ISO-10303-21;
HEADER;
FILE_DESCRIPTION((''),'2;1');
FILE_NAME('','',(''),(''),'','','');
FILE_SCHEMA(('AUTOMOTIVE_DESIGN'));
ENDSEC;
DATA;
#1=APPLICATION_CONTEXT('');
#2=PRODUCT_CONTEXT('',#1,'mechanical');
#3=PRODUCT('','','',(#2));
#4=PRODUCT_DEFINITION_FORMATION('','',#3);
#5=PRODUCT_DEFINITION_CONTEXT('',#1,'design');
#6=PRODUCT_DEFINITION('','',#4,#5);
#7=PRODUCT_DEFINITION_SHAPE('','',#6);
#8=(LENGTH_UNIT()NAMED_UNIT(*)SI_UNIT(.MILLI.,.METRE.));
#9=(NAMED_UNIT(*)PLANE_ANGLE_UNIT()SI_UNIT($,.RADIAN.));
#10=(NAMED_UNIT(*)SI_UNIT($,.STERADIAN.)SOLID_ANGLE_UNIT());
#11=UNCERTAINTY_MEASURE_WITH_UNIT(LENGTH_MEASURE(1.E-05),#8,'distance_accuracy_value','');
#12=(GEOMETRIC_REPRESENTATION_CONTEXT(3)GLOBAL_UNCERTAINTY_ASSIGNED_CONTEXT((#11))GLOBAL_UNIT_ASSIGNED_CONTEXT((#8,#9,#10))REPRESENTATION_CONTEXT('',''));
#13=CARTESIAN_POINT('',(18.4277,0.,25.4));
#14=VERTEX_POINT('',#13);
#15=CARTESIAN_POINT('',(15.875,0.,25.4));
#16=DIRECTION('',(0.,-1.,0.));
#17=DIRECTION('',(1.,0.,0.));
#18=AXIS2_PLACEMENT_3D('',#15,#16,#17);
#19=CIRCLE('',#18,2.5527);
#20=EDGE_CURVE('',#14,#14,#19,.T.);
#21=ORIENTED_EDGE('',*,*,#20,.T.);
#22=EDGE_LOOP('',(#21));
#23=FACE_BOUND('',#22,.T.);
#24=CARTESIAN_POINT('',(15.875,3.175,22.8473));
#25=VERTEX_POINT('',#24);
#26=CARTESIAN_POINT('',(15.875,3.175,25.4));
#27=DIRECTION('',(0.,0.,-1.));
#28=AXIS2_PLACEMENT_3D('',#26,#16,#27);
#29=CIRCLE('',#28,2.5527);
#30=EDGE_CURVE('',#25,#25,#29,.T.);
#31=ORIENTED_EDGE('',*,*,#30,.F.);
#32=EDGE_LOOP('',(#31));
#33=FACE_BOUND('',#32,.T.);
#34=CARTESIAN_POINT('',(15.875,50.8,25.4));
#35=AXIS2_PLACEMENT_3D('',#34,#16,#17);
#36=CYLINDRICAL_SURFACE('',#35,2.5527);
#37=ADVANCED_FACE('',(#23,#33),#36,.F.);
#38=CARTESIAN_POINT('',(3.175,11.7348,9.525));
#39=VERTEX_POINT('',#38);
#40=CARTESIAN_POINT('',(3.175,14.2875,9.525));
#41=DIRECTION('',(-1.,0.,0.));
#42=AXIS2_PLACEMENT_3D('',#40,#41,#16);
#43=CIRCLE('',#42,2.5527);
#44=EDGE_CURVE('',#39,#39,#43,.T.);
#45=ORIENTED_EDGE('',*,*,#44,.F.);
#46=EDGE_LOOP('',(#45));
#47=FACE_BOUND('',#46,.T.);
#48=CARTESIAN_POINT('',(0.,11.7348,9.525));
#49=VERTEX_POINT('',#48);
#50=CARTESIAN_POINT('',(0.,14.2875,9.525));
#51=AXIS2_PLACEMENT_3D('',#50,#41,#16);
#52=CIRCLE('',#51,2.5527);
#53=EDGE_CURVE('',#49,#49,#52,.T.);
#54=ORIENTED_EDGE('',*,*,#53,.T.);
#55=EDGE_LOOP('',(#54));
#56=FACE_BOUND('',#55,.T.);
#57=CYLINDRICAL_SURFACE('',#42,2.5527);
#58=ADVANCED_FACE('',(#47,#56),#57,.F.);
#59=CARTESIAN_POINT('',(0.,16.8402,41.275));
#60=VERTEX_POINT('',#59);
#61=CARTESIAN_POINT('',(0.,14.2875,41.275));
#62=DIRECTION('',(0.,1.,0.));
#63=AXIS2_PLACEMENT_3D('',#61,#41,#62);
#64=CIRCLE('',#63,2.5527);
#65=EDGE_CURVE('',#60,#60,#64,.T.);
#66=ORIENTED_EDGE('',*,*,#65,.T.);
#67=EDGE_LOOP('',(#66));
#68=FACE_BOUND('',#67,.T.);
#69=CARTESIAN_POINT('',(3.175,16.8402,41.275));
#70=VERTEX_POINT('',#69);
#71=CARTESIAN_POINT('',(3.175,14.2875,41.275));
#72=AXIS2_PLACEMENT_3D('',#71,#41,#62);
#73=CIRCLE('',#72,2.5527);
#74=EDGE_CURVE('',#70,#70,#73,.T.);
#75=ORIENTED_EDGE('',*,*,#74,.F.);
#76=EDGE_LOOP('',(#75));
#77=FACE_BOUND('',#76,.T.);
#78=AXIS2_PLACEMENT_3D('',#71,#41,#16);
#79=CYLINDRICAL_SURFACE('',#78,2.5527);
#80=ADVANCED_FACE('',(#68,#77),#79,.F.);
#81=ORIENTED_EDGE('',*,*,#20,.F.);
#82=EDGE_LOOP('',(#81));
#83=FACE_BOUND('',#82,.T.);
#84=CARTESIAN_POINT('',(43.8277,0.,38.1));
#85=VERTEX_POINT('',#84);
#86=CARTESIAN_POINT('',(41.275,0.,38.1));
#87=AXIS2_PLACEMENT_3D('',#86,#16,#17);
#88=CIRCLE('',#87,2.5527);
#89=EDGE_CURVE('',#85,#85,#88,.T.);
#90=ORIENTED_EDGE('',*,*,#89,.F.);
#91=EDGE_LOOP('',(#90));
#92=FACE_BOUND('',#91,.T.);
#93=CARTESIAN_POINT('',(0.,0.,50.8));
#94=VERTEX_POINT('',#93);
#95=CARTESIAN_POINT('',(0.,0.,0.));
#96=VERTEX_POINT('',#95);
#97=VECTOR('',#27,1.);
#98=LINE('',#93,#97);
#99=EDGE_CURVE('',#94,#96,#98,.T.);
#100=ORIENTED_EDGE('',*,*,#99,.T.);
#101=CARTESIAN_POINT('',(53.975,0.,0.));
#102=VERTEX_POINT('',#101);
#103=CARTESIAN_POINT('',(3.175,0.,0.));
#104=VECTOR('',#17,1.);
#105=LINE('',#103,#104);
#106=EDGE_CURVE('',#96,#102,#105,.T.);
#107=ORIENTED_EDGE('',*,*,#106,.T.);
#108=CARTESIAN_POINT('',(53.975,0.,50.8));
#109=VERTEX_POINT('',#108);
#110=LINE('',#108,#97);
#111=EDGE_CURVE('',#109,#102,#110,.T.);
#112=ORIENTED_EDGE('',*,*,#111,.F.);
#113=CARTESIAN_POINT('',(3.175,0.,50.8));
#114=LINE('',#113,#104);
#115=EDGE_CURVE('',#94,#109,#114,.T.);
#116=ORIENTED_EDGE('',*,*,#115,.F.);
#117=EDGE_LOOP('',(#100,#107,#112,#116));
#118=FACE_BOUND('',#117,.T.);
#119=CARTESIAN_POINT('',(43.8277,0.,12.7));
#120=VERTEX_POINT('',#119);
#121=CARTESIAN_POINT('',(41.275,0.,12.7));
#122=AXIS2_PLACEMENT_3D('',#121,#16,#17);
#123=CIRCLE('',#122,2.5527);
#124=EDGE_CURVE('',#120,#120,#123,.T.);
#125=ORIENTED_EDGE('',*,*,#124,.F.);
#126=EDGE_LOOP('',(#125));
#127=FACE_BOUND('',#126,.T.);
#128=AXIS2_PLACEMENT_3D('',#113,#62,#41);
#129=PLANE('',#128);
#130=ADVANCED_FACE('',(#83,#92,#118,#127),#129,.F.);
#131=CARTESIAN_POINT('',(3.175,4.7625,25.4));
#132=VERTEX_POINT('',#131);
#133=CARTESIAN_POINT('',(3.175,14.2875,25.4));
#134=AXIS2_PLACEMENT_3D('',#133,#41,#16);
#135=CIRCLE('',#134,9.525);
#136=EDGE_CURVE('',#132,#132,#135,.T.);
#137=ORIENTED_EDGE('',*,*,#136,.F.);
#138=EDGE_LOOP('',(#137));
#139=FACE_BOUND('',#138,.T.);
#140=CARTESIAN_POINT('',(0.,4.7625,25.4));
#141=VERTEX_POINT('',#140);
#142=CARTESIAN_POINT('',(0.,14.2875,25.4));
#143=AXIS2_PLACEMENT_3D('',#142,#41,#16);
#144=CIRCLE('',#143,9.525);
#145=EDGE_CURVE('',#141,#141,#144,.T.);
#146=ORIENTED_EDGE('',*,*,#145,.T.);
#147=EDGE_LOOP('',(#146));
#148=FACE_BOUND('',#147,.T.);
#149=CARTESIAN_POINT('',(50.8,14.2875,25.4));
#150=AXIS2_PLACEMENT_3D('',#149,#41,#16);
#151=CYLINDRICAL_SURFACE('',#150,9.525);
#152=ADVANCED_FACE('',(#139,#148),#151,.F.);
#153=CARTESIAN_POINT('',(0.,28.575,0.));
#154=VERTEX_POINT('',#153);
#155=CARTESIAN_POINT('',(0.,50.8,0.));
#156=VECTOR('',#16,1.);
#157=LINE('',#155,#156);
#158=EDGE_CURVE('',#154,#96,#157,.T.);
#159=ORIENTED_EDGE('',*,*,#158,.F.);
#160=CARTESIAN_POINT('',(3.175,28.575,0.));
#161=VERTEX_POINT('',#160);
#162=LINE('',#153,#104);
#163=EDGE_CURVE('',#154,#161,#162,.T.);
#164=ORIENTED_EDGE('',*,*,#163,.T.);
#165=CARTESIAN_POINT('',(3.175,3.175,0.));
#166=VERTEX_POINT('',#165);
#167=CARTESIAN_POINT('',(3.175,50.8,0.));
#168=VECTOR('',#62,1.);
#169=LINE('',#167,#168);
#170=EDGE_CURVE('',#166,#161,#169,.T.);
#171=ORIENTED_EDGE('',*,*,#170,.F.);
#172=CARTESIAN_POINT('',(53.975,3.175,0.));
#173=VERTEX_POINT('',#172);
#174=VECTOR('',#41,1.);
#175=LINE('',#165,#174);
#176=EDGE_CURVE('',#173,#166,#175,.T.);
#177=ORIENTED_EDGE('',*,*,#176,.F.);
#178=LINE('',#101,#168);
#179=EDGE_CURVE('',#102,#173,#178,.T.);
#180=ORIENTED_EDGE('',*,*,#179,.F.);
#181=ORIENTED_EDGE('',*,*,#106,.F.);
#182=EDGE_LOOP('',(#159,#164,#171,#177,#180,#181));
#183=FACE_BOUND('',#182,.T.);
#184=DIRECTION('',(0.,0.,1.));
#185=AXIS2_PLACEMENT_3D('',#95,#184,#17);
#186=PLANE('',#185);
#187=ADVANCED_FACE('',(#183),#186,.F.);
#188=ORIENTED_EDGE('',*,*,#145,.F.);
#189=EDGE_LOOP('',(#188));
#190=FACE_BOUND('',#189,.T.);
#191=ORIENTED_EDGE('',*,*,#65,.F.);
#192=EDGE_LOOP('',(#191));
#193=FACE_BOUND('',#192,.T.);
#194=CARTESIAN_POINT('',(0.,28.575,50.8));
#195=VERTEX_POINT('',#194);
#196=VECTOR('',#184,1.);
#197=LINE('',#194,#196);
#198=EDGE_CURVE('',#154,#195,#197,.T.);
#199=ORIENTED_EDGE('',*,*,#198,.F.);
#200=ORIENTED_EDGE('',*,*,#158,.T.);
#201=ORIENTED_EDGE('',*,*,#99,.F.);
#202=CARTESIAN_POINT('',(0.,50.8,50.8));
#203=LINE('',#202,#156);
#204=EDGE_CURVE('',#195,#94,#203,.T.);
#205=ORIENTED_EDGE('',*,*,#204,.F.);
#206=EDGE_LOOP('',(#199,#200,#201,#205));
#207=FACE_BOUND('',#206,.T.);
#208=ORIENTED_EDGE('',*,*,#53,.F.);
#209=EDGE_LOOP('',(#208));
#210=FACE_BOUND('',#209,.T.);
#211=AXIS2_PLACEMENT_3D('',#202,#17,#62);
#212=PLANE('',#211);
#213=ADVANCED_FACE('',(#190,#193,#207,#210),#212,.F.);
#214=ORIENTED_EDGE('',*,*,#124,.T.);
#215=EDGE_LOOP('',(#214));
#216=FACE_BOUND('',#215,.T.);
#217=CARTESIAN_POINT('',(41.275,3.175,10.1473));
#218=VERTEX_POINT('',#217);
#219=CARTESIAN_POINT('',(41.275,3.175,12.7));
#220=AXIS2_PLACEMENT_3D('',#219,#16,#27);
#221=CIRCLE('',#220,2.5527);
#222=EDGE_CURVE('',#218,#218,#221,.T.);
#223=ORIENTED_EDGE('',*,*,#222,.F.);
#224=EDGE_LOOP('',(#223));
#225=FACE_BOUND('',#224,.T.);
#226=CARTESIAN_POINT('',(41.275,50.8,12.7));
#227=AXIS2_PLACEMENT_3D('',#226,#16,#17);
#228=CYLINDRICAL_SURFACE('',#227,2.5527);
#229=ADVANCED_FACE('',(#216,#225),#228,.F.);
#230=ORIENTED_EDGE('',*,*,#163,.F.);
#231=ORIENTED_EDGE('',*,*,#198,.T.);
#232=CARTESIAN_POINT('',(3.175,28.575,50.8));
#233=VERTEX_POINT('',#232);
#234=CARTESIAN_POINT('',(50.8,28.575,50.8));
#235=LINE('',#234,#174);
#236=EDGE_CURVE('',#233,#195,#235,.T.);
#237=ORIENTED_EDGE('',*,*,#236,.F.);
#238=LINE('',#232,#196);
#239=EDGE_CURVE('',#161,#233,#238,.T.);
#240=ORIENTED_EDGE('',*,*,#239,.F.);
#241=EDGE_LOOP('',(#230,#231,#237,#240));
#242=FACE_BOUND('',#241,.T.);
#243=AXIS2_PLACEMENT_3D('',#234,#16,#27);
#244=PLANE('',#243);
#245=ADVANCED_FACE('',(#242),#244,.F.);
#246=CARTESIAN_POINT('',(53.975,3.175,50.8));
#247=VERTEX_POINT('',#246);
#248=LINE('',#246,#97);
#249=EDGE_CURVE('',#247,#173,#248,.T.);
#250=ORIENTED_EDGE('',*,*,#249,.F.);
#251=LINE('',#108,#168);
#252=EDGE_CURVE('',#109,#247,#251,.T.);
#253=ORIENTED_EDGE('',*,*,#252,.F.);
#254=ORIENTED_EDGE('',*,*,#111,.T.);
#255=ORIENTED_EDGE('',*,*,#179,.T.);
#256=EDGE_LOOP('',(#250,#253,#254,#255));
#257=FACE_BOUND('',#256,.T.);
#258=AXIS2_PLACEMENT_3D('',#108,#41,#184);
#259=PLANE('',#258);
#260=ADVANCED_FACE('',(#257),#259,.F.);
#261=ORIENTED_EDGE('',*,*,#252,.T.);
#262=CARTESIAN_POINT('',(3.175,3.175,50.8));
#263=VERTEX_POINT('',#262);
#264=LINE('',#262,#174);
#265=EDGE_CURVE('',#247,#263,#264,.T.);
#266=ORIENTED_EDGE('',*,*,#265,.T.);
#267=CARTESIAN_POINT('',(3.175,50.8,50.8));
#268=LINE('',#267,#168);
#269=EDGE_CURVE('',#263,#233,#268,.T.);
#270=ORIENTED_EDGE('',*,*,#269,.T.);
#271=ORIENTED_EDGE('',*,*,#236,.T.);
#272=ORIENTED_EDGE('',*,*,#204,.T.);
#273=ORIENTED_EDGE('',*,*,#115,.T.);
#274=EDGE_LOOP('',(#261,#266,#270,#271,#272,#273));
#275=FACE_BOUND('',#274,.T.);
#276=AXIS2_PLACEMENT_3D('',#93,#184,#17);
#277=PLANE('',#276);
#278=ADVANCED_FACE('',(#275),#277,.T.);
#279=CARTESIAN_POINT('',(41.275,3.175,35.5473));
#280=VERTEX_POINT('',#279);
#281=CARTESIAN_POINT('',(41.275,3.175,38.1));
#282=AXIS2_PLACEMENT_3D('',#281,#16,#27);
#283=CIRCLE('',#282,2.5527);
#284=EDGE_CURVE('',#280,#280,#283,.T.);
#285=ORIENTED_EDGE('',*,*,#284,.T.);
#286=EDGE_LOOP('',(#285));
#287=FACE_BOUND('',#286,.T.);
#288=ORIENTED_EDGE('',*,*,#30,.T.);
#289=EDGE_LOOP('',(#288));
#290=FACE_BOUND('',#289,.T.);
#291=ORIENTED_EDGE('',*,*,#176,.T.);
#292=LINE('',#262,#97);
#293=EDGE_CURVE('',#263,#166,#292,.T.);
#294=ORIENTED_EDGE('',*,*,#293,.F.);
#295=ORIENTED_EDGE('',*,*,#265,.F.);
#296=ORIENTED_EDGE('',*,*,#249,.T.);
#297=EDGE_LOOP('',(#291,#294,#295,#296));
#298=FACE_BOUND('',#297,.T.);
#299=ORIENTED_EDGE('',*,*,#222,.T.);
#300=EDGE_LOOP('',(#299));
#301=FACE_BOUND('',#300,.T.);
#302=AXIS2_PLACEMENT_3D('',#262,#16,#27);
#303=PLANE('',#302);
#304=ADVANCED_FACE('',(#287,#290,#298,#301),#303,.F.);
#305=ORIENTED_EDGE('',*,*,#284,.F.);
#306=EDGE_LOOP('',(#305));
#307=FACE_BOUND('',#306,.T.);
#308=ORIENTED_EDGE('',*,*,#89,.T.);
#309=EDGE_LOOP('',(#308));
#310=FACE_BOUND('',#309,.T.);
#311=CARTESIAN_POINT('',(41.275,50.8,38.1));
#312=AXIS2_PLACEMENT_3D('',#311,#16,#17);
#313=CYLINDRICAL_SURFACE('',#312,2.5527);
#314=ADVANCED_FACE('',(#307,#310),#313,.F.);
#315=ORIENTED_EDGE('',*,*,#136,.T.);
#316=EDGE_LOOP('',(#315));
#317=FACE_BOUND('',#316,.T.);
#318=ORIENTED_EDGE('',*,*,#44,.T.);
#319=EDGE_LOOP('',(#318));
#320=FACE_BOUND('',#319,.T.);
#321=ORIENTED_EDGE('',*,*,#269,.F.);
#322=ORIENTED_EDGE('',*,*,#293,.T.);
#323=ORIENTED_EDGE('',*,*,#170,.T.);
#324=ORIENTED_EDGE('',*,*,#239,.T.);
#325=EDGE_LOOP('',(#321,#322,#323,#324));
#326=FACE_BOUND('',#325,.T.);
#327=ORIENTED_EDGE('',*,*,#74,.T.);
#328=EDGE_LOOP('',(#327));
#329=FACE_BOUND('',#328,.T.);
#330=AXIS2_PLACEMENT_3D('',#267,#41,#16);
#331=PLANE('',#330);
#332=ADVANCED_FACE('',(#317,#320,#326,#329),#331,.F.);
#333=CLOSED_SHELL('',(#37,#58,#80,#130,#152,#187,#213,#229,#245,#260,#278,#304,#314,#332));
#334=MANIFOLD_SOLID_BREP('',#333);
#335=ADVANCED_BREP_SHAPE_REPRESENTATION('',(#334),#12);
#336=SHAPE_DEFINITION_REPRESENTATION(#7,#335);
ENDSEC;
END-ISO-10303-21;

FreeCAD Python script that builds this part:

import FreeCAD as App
import Part
import Sketcher

V = App.Vector
Q = App.Units.Quantity

doc = App.newDocument("Part")
body = doc.addObject("PartDesign::Body", "Body")

# Sketch on XY plane
sketch1 = doc.addObject("Sketcher::SketchObject", "Sketch")
body.addObject(sketch1)
sketch1.AttachmentSupport = (doc.XY_Plane, [""])
sketch1.MapMode = "FlatFace"
sketch1.addGeometry([
    Part.LineSegment(V(3.175, 50.8, 0), V(0, 50.8, 0)),  # 0
    Part.LineSegment(V(0, 50.8, 0), V(0, 0, 0)),  # 1
    Part.LineSegment(V(0, 0, 0), V(53.975, 0, 0)),  # 2
    Part.LineSegment(V(53.975, 0, 0), V(53.975, 3.175, 0)),  # 3
    Part.LineSegment(V(53.975, 3.175, 0), V(3.175, 3.175, 0)),  # 4
    Part.LineSegment(V(3.175, 3.175, 0), V(3.175, 50.8, 0)),  # 5
], False)
sketch1.addConstraint([
    Sketcher.Constraint("Coincident", 0, 2, 1, 1),
    Sketcher.Constraint("Coincident", 1, 2, 2, 1),
    Sketcher.Constraint("Coincident", 2, 2, 3, 1),
    Sketcher.Constraint("Coincident", 3, 2, 4, 1),
    Sketcher.Constraint("Coincident", 4, 2, 5, 1),
    Sketcher.Constraint("Coincident", 5, 2, 0, 1),
    Sketcher.Constraint("Horizontal", 0),
    Sketcher.Constraint("Vertical", 1),
    Sketcher.Constraint("Horizontal", 2),
    Sketcher.Constraint("Vertical", 3),
    Sketcher.Constraint("Horizontal", 4),
    Sketcher.Constraint("Vertical", 5),
    Sketcher.Constraint("Coincident", 1, 2, -1, 1),
    Sketcher.Constraint("Equal", 4, 1),
    Sketcher.Constraint("Equal", 0, 3),
    Sketcher.Constraint("DistanceX", 4, 2, 4, 1, Q("2 in")),
    Sketcher.Constraint("DistanceX", 0, 2, 0, 1, Q("0.125 in")),
])
pad1 = doc.addObject("PartDesign::Pad", "Pad")
body.addObject(pad1)
pad1.Profile = sketch1
pad1.Length = Q("2 in")

# Sketch on YZ plane
sketch2 = doc.addObject("Sketcher::SketchObject", "Sketch001")
body.addObject(sketch2)
sketch2.AttachmentSupport = (doc.YZ_Plane, [""])
sketch2.MapMode = "FlatFace"
sketch2.addGeometry([
    Part.Circle(V(14.2875, 25.4, 0), V(0, 0, 1), 9.525),  # 0
    Part.LineSegment(V(50.8, 0, 0), V(28.575, 0, 0)),  # 1
    Part.LineSegment(V(28.575, 0, 0), V(28.575, 50.8, 0)),  # 2
    Part.LineSegment(V(28.575, 50.8, 0), V(50.8, 50.8, 0)),  # 3
    Part.LineSegment(V(50.8, 50.8, 0), V(50.8, 0, 0)),  # 4
], False)
sketch2.addConstraint([
    Sketcher.Constraint("Coincident", 1, 2, 2, 1),
    Sketcher.Constraint("Coincident", 2, 2, 3, 1),
    Sketcher.Constraint("Coincident", 3, 2, 4, 1),
    Sketcher.Constraint("Coincident", 4, 2, 1, 1),
    Sketcher.Constraint("Horizontal", 1),
    Sketcher.Constraint("Vertical", 2),
    Sketcher.Constraint("Horizontal", 3),
    Sketcher.Constraint("Vertical", 4),
    Sketcher.Constraint("PointOnObject", 1, 2, -1),
    Sketcher.Constraint("Diameter", 0, Q("0.75 in")),
    Sketcher.Constraint("DistanceY", 2, 1, 2, 2, Q("2 in")),
    Sketcher.Constraint("DistanceY", -1, 1, 0, 3, Q("1 in")),
    Sketcher.Constraint("DistanceX", -1, 1, 3, 2, Q("2 in")),
    Sketcher.Constraint("DistanceX", 1, 2, 1, 1, Q("0.875 in")),
    Sketcher.Constraint("DistanceX", -1, 1, 0, 3, Q("0.5625 in")),
])
pocket1 = doc.addObject("PartDesign::Pocket", "Pocket")
body.addObject(pocket1)
pocket1.Profile = sketch2
pocket1.Length = Q("2 in")
pocket1.Reversed = True

# Sketch on XZ plane
sketch3 = doc.addObject("Sketcher::SketchObject", "Sketch002")
body.addObject(sketch3)
sketch3.AttachmentSupport = (doc.XZ_Plane, [""])
sketch3.MapMode = "FlatFace"
sketch3.addGeometry([
    Part.Circle(V(15.875, 25.4, 0), V(0, 0, 1), 2.5527),
    Part.Circle(V(41.275, 38.1, 0), V(0, 0, 1), 2.5527),
    Part.Circle(V(41.275, 12.7, 0), V(0, 0, 1), 2.5527),
], False)
sketch3.addConstraint([
    Sketcher.Constraint("Equal", 0, 1),
    Sketcher.Constraint("Equal", 1, 2),
    Sketcher.Constraint("Vertical", 1, 3, 2, 3),
    Sketcher.Constraint("Diameter", 0, Q("0.201 in")),
    Sketcher.Constraint("DistanceY", -1, 1, 0, 3, Q("1 in")),
    Sketcher.Constraint("DistanceX", 0, 3, 1, 3, Q("1 in")),
    Sketcher.Constraint("DistanceY", 2, 3, 1, 3, Q("1 in")),
    Sketcher.Constraint("DistanceY", -1, 1, 1, 3, Q("1.5 in")),
    Sketcher.Constraint("DistanceX", -1, 1, 0, 3, Q("0.625 in")),
])
pocket2 = doc.addObject("PartDesign::Pocket", "Pocket001")
body.addObject(pocket2)
pocket2.Profile = sketch3
pocket2.Length = Q("2 in")

# Sketch on YZ plane
sketch4 = doc.addObject("Sketcher::SketchObject", "Sketch003")
body.addObject(sketch4)
sketch4.AttachmentSupport = (doc.YZ_Plane, [""])
sketch4.MapMode = "FlatFace"
sketch4.addGeometry([
    Part.Circle(V(14.2875, 9.525, 0), V(0, 0, 1), 2.5527),
    Part.Circle(V(14.2875, 41.275, 0), V(0, 0, 1), 2.5527),
], False)
sketch4.addConstraint([
    Sketcher.Constraint("Equal", 0, 1),
    Sketcher.Constraint("Vertical", 0, 3, 1, 3),
    Sketcher.Constraint("Diameter", 0, Q("0.201 in")),
    Sketcher.Constraint("DistanceY", 0, 3, 1, 3, Q("1.25 in")),
    Sketcher.Constraint("DistanceX", -1, 1, 0, 3, Q("0.5625 in")),
    Sketcher.Constraint("DistanceY", -1, 1, 0, 3, Q("0.375 in")),
])
pocket3 = doc.addObject("PartDesign::Pocket", "Pocket002")
body.addObject(pocket3)
pocket3.Profile = sketch4
pocket3.Length = Q("0.125 in")
pocket3.Reversed = True

doc.recompute()
